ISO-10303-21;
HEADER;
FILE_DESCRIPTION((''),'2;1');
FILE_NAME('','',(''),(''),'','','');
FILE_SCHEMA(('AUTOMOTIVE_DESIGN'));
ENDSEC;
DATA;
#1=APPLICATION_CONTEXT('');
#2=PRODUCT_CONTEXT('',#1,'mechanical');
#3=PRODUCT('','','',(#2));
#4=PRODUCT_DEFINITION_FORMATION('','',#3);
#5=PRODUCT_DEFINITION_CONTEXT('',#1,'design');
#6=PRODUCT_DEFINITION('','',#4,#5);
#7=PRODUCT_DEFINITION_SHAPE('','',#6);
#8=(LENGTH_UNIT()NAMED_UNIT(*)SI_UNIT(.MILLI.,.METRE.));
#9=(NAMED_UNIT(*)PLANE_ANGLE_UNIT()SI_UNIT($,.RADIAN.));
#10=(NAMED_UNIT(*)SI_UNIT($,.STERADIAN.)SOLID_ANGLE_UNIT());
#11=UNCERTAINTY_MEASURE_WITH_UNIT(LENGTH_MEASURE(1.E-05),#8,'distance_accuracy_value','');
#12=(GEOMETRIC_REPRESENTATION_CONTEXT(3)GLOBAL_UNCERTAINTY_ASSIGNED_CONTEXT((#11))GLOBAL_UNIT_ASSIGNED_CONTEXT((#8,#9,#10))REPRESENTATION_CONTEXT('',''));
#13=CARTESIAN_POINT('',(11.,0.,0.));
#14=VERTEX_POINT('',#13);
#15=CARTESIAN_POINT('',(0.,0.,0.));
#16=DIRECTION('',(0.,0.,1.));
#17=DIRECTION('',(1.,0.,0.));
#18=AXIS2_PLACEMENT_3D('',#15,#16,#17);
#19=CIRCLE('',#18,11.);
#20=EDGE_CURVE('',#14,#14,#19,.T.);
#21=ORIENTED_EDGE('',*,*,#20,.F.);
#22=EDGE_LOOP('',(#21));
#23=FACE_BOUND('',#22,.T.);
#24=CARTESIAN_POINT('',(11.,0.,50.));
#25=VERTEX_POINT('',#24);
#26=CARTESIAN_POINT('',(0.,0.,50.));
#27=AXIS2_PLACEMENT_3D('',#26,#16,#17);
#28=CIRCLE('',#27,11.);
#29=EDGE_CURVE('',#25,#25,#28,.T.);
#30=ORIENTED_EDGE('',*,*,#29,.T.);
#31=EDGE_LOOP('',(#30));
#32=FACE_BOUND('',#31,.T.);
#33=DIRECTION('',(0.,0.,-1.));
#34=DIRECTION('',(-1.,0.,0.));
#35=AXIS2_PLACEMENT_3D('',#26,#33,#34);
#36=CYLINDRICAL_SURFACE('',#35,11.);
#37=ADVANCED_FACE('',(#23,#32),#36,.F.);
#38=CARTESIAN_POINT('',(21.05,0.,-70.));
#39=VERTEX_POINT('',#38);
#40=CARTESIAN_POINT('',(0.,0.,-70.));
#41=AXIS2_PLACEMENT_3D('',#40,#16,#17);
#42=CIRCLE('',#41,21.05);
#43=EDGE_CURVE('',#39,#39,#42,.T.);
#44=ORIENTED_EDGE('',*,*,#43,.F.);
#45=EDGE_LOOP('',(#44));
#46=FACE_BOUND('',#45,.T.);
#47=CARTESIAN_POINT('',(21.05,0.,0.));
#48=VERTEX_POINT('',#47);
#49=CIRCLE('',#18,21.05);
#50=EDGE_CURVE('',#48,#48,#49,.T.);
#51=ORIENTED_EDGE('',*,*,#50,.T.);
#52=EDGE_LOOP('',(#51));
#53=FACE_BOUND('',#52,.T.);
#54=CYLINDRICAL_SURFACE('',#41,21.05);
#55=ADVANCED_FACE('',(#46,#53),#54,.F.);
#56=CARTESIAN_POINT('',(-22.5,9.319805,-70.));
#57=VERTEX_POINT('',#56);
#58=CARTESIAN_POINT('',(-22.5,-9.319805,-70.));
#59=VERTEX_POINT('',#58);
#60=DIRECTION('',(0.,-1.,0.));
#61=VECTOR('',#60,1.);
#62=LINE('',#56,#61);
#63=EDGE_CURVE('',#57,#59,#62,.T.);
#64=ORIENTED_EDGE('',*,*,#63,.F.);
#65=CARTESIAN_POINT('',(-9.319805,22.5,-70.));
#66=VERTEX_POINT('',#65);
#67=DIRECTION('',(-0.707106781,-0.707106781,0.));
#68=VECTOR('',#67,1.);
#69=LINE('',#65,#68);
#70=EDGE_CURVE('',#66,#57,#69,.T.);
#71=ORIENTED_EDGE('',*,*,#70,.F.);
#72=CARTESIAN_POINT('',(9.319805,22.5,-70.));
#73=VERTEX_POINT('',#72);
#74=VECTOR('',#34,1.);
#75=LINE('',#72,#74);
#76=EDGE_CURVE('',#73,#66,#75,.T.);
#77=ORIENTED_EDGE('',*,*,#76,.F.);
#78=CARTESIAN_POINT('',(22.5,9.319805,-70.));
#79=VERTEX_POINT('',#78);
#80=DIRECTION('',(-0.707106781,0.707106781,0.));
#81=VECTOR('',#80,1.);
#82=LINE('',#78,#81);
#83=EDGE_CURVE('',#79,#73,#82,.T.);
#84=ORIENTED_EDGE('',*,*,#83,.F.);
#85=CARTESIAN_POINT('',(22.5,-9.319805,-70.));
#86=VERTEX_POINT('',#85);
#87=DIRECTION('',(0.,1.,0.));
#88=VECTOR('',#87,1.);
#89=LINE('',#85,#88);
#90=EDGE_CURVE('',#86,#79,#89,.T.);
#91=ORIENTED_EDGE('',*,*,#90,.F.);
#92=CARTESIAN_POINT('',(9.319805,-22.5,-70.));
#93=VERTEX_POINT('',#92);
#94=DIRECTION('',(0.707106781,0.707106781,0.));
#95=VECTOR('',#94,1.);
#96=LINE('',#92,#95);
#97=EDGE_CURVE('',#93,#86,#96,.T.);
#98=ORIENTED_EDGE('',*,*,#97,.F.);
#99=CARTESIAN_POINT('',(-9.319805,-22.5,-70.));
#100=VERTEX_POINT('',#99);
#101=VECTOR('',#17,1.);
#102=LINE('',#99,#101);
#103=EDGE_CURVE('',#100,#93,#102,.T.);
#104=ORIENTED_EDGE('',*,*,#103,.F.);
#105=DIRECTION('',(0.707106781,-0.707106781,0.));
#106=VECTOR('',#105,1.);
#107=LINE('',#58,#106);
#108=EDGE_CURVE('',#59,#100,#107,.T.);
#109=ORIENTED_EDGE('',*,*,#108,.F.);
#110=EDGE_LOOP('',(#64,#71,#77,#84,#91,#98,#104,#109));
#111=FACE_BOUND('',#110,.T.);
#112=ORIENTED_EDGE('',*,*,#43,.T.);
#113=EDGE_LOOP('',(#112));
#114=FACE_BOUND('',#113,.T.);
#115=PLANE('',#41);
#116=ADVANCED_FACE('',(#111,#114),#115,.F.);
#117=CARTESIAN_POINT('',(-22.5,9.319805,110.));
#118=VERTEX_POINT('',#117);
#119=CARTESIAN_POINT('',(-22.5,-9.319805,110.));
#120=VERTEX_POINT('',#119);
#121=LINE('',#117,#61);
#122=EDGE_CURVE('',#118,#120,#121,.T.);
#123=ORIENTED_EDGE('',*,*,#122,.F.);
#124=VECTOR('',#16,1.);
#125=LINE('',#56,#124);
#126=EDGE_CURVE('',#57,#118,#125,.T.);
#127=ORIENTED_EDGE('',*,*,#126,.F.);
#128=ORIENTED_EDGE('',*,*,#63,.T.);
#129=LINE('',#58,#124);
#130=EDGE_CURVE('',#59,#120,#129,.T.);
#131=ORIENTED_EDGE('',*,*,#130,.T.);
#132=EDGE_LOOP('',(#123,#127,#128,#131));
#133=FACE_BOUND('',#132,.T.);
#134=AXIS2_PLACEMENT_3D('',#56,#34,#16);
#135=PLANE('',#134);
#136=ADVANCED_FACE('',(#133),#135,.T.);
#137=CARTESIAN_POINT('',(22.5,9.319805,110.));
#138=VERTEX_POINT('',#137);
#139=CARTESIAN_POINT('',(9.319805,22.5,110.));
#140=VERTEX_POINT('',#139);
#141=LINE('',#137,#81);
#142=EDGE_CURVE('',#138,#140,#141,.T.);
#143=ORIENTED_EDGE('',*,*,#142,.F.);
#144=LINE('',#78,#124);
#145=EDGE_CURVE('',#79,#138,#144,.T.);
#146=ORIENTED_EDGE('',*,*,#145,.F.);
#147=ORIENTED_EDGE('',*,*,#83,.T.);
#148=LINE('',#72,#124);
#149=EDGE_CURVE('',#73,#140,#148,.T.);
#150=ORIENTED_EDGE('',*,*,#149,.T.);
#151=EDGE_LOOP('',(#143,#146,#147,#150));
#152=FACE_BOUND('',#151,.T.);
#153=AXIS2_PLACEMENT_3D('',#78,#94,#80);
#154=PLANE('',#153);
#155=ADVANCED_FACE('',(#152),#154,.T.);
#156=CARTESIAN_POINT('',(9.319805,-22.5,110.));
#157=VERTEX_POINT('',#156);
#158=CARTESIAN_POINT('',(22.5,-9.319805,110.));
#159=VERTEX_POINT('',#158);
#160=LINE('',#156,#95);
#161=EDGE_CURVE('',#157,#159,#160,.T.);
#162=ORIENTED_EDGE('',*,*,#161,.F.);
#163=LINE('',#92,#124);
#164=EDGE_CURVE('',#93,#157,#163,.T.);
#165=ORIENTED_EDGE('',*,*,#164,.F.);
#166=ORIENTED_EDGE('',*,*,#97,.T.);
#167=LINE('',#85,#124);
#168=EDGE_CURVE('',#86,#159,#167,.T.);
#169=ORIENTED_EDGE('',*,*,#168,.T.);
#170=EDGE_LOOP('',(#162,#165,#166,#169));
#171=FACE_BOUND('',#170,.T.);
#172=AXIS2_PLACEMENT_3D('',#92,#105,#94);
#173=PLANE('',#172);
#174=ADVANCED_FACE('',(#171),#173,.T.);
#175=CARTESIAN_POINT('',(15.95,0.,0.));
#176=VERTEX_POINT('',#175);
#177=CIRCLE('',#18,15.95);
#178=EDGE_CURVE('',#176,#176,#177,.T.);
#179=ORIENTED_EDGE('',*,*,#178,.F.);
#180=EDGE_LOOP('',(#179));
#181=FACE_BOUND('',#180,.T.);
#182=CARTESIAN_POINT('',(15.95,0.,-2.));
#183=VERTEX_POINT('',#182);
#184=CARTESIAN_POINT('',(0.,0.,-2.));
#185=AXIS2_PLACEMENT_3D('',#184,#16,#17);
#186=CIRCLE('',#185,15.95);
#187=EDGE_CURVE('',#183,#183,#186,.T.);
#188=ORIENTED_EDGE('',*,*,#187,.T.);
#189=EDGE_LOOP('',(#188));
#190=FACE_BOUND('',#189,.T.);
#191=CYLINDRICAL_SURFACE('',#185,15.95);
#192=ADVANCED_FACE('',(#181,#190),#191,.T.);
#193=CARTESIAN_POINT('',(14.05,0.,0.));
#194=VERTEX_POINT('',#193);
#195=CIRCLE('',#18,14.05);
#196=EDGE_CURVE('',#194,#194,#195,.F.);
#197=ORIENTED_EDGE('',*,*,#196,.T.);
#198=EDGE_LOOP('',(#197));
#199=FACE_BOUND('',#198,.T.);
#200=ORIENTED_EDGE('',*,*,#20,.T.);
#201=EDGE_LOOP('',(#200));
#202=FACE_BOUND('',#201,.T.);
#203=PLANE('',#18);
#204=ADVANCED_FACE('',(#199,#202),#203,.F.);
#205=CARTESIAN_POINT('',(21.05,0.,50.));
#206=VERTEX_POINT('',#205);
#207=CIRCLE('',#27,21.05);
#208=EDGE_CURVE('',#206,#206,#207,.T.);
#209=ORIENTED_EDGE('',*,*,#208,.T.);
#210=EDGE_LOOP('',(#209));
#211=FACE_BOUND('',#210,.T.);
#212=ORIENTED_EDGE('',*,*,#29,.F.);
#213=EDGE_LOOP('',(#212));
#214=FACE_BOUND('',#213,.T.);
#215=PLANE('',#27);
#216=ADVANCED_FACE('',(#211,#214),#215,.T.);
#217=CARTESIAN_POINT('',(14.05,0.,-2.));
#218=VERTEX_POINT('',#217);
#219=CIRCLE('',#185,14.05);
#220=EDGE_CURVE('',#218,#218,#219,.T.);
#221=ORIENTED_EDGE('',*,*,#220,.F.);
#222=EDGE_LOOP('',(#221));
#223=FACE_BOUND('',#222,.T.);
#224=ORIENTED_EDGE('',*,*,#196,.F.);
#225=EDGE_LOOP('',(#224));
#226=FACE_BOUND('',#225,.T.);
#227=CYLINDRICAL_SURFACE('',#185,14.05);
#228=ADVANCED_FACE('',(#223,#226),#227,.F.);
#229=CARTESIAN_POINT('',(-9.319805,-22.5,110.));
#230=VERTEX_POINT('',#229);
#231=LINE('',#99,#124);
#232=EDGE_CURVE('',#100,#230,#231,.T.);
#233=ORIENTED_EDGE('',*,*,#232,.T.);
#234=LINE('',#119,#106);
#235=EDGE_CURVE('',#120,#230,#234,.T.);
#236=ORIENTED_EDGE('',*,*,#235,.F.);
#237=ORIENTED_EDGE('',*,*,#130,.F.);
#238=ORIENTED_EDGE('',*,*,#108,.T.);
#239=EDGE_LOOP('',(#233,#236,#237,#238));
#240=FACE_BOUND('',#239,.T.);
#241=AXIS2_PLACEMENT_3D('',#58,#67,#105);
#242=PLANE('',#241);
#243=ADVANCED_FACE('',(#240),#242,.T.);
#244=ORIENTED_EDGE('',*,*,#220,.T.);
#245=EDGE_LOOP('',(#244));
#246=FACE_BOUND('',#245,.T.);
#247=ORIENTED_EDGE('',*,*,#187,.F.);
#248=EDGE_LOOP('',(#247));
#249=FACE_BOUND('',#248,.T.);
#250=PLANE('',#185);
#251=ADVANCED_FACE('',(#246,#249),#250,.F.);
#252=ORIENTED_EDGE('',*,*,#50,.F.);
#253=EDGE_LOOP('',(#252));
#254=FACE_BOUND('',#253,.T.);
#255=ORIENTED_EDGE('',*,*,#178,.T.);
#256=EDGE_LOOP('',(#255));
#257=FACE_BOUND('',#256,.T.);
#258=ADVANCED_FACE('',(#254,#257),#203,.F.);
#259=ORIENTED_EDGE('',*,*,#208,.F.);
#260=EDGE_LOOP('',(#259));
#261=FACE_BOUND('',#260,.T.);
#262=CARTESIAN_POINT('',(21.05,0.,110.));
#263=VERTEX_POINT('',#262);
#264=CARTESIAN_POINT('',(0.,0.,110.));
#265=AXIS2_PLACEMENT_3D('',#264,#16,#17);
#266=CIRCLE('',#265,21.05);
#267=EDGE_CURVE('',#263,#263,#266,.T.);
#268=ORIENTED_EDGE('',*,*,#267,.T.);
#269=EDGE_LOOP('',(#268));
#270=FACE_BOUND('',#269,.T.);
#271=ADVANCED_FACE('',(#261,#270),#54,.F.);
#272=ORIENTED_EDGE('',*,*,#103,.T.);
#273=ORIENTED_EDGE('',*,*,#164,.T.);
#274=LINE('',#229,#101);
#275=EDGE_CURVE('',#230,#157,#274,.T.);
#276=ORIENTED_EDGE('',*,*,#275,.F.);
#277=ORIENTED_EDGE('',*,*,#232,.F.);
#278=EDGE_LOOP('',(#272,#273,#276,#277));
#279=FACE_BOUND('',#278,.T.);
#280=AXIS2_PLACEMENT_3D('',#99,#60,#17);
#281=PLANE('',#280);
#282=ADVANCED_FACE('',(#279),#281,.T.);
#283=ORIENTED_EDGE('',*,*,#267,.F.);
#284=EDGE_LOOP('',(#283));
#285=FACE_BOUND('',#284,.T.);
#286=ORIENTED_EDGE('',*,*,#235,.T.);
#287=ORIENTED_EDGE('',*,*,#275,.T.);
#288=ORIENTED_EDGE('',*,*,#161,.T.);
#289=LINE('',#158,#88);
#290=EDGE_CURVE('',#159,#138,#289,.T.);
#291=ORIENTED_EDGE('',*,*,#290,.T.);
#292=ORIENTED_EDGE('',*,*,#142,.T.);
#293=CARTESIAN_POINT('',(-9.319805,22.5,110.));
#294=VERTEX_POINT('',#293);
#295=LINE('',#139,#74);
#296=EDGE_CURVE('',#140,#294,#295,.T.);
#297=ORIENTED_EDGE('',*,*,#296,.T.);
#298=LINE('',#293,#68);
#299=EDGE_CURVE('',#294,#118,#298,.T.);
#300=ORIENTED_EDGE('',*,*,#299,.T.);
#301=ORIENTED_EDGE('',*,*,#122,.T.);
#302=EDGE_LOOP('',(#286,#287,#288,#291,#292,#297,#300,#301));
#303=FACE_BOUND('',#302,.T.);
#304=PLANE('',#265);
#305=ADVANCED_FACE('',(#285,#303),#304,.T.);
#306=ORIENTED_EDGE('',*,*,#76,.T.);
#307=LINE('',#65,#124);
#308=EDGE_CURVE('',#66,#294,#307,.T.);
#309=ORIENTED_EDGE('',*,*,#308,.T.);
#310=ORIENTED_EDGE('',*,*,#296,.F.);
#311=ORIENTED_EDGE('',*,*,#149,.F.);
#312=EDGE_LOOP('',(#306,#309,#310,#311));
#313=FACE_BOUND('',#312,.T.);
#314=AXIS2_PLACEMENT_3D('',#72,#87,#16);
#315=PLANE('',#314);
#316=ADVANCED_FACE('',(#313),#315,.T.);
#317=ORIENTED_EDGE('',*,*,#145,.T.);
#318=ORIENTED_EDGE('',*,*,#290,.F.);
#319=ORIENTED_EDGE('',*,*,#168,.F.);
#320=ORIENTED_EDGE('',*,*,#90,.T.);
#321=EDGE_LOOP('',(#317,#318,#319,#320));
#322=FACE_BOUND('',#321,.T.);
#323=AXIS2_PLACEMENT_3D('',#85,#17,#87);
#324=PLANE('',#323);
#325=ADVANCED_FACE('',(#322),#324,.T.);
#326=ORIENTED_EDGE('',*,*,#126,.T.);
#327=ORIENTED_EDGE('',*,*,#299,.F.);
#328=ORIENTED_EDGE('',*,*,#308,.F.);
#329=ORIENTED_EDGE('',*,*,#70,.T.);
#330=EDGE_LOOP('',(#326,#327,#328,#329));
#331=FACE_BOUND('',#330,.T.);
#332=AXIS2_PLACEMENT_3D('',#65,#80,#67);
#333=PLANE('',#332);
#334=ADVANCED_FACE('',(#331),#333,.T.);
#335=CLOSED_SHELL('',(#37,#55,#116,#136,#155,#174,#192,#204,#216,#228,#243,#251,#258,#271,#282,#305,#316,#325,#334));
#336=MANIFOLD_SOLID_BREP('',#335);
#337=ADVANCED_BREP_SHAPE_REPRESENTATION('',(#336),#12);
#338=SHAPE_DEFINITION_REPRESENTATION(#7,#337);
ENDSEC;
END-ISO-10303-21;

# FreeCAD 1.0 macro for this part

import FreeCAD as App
import Part
import Sketcher
from FreeCAD import Vector


def add_polygon(sketch, points):
    """Adds a closed chain of lines whose ends are joined by coincident constraints."""
    first, n = sketch.GeometryCount, len(points)
    for a, b in zip(points, points[1:] + points[:1]):
        sketch.addGeometry(Part.LineSegment(App.Vector(*a, 0), App.Vector(*b, 0)), False)
    for i in range(n):
        sketch.addConstraint(Sketcher.Constraint("Coincident", first + i, 2, first + (i + 1) % n, 1))

doc = App.newDocument("Part")
body = doc.addObject("PartDesign::Body", "Body")

sketch1 = body.newObject("Sketcher::SketchObject", "Sketch")
sketch1.AttachmentSupport = (doc.getObject("XY_Plane"), [""])
sketch1.MapMode = "FlatFace"
sketch1.addGeometry(Part.Circle(Vector(0, 0, 0), Vector(0, 0, 1), 16), False)
sketch1.addGeometry(Part.Circle(Vector(0, 0, 0), Vector(0, 0, 1), 14), False)
sketch1.addConstraint(Sketcher.Constraint("Coincident", 0, 3, -1, 1))
sketch1.addConstraint(Sketcher.Constraint("Coincident", 1, 3, -1, 1))
sketch1.addConstraint(Sketcher.Constraint("Diameter", 0, 31.9))
sketch1.addConstraint(Sketcher.Constraint("Diameter", 1, 28.1))
pad1 = body.newObject("PartDesign::Pad", "Pad")
pad1.Profile = sketch1
pad1.Length = 2
pad1.Reversed = True

sketch2 = body.newObject("Sketcher::SketchObject", "Sketch001")
sketch2.AttachmentSupport = (doc.getObject("XY_Plane"), [""])
sketch2.MapMode = "FlatFace"
sketch2.addGeometry(Part.Circle(Vector(0, 0, 0), Vector(0, 0, 1), 22), False)
sketch2.addGeometry(Part.Circle(Vector(0, 0, 0), Vector(0, 0, 1), 11), False)
sketch2.addConstraint(Sketcher.Constraint("Coincident", 0, 3, -1, 1))
sketch2.addConstraint(Sketcher.Constraint("Coincident", 1, 3, -1, 1))
sketch2.addConstraint(Sketcher.Constraint("Diameter", 0, 45.0))
sketch2.addConstraint(Sketcher.Constraint("Diameter", 1, 22.0))
pad2 = body.newObject("PartDesign::Pad", "Pad001")
pad2.Profile = sketch2
pad2.Length = 50

sketch3 = body.newObject("Sketcher::SketchObject", "Sketch002")
sketch3.AttachmentSupport = (doc.getObject("XY_Plane"), [""])
sketch3.MapMode = "FlatFace"
add_polygon(sketch3, [(-9, -22), (9, -22), (22, -9), (22, 9), (9, 22), (-9, 22), (-22, 9), (-22, -9)])
sketch3.addGeometry(Part.Circle(Vector(0, 0, 0), Vector(0, 0, 1), 21), False)
sketch3.addConstraint(Sketcher.Constraint("Horizontal", 0))
sketch3.addConstraint(Sketcher.Constraint("Vertical", 2))
sketch3.addConstraint(Sketcher.Constraint("Horizontal", 4))
sketch3.addConstraint(Sketcher.Constraint("Vertical", 6))
sketch3.addConstraint(Sketcher.Constraint("Coincident", 8, 3, -1, 1))
sketch3.addConstraint(Sketcher.Constraint("Symmetric", 0, 2, 4, 2, -1, 1))
sketch3.addConstraint(Sketcher.Constraint("Symmetric", 1, 2, 5, 2, -1, 1))
sketch3.addConstraint(Sketcher.Constraint("Perpendicular", 1, 3))
sketch3.addConstraint(Sketcher.Constraint("Perpendicular", 5, 7))
sketch3.addConstraint(Sketcher.Constraint("Horizontal", 2, 2, 5, 2))
sketch3.addConstraint(Sketcher.Constraint("Horizontal", 1, 2, 6, 2))
sketch3.addConstraint(Sketcher.Constraint("Vertical", 0, 2, 3, 2))
sketch3.addConstraint(Sketcher.Constraint("Equal", 4, 2))
sketch3.addConstraint(Sketcher.Constraint("Diameter", 8, 42.1))
sketch3.addConstraint(Sketcher.Constraint("DistanceY", 0, 2, 3, 2, 45.0))
sketch3.addConstraint(Sketcher.Constraint("DistanceX", 0, 1, 0, 2, 18.63961))
pad3 = body.newObject("PartDesign::Pad", "Pad002")
pad3.Profile = sketch3
pad3.Length = 140
pad3.Midplane = True

sketch4 = body.newObject("Sketcher::SketchObject", "Sketch003")
sketch4.AttachmentSupport = (doc.getObject("XY_Plane"), [""])
sketch4.MapMode = "FlatFace"
sketch4.AttachmentOffset = App.Placement(Vector(0, 0, 70), App.Rotation())
add_polygon(sketch4, [(-22, -9), (-9, -22), (9, -22), (22, -9), (22, 9), (9, 22), (-9, 22), (-22, 9)])
sketch4.addGeometry(Part.Circle(Vector(0, 0, 0), Vector(0, 0, 1), 21), False)
sketch4.addConstraint(Sketcher.Constraint("Horizontal", 1))
sketch4.addConstraint(Sketcher.Constraint("Vertical", 3))
sketch4.addConstraint(Sketcher.Constraint("Horizontal", 5))
sketch4.addConstraint(Sketcher.Constraint("Vertical", 7))
sketch4.addConstraint(Sketcher.Constraint("Coincident", 8, 3, -1, 1))
sketch4.addConstraint(Sketcher.Constraint("Symmetric", 0, 2, 4, 2, -1, 1))
sketch4.addConstraint(Sketcher.Constraint("Symmetric", 2, 2, 6, 2, -1, 1))
sketch4.addConstraint(Sketcher.Constraint("Perpendicular", 0, 2))
sketch4.addConstraint(Sketcher.Constraint("Perpendicular", 2, 4))
sketch4.addConstraint(Sketcher.Constraint("Perpendicular", 4, 6))
sketch4.addConstraint(Sketcher.Constraint("Horizontal", 3, 2, 6, 2))
sketch4.addConstraint(Sketcher.Constraint("Vertical", 1, 2, 4, 2))
sketch4.addConstraint(Sketcher.Constraint("Equal", 5, 3))
sketch4.addConstraint(Sketcher.Constraint("Diameter", 8, 42.1))
sketch4.addConstraint(Sketcher.Constraint("DistanceY", 1, 2, 4, 2, 45.0))
sketch4.addConstraint(Sketcher.Constraint("DistanceX", 1, 1, 1, 2, 18.63961))
pad4 = body.newObject("PartDesign::Pad", "Pad003")
pad4.Profile = sketch4
pad4.Length = 40

doc.recompute()
